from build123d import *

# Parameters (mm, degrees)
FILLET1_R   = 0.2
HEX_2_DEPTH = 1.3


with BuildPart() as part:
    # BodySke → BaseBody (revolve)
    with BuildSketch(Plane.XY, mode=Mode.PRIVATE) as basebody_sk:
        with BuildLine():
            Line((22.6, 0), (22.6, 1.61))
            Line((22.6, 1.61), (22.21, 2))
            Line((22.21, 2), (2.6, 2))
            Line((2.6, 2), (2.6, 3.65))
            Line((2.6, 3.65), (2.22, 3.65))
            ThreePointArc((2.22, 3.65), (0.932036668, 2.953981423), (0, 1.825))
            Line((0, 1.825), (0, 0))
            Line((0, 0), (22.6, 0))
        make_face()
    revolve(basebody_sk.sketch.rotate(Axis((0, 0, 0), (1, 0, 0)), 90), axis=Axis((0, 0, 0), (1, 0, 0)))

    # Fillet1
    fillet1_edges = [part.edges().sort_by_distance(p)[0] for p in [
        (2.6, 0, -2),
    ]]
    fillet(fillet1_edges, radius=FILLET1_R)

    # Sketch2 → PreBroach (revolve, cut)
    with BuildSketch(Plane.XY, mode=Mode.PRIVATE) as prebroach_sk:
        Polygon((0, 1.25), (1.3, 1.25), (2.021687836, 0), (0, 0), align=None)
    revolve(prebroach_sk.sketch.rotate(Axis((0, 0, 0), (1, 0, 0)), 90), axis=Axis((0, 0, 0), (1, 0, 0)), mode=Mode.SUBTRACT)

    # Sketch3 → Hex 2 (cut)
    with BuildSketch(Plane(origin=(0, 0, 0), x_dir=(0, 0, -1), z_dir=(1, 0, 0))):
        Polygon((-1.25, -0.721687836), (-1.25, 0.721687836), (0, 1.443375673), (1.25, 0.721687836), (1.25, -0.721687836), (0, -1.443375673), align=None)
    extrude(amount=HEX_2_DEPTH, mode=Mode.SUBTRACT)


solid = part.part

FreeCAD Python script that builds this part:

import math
import FreeCAD as App
import Part
import Sketcher
from FreeCAD import Vector
Q = App.Units.Quantity


def edges_at(feature, points):
    """Names of the edges that pass closest to the given points."""
    edges = feature.Shape.Edges
    near = lambda p: min(range(len(edges)), key=lambda i: edges[i].distToShape(Part.Vertex(*p))[0])
    return sorted({f"Edge{near(p) + 1}" for p in points})


def add_polygon(sketch, points):
    """Adds a closed chain of lines whose ends are joined by coincident constraints."""
    first, n = sketch.GeometryCount, len(points)
    for a, b in zip(points, points[1:] + points[:1]):
        sketch.addGeometry(Part.LineSegment(App.Vector(*a, 0), App.Vector(*b, 0)), False)
    for i in range(n):
        sketch.addConstraint(Sketcher.Constraint("Coincident", first + i, 2, first + (i + 1) % n, 1))

doc = App.newDocument("Part")
body = doc.addObject("PartDesign::Body", "Body")

# Sketch on XY plane
sketch1 = doc.addObject("Sketcher::SketchObject", "Sketch")
body.addObject(sketch1)
sketch1.AttachmentSupport = (doc.XY_Plane, [""])
sketch1.MapMode = "FlatFace"
sketch1.addGeometry(Part.LineSegment(Vector(22.6, 0, 0), Vector(22.6, 1.61, 0)), False)
sketch1.addGeometry(Part.LineSegment(Vector(22.6, 1.61, 0), Vector(22.21, 2, 0)), False)
sketch1.addGeometry(Part.LineSegment(Vector(22.21, 2, 0), Vector(2.6, 2, 0)), False)
sketch1.addGeometry(Part.LineSegment(Vector(2.6, 2, 0), Vector(2.6, 3.65, 0)), False)
sketch1.addGeometry(Part.LineSegment(Vector(2.6, 3.65, 0), Vector(2.22, 3.65, 0)), False)
sketch1.addGeometry(Part.ArcOfCircle(Part.Circle(Vector(3.36, 0, 0), Vector(0, 0, 1), 3.82), math.radians(107), math.radians(151)), False)
sketch1.addGeometry(Part.LineSegment(Vector(0, 1.82, 0), Vector(0, 0, 0)), False)
sketch1.addGeometry(Part.LineSegment(Vector(0, 0, 0), Vector(22.6, 0, 0)), False)
sketch1.addConstraint(Sketcher.Constraint("Coincident", 0, 2, 1, 1))
sketch1.addConstraint(Sketcher.Constraint("Coincident", 1, 2, 2, 1))
sketch1.addConstraint(Sketcher.Constraint("Coincident", 2, 2, 3, 1))
sketch1.addConstraint(Sketcher.Constraint("Coincident", 3, 2, 4, 1))
sketch1.addConstraint(Sketcher.Constraint("Coincident", 4, 2, 5, 1))
sketch1.addConstraint(Sketcher.Constraint("Coincident", 5, 2, 6, 1))
sketch1.addConstraint(Sketcher.Constraint("Coincident", 6, 2, 7, 1))
sketch1.addConstraint(Sketcher.Constraint("Coincident", 7, 2, 0, 1))
sketch1.addConstraint(Sketcher.Constraint("Vertical", 0))
sketch1.addConstraint(Sketcher.Constraint("Horizontal", 2))
sketch1.addConstraint(Sketcher.Constraint("Vertical", 3))
sketch1.addConstraint(Sketcher.Constraint("Horizontal", 4))
sketch1.addConstraint(Sketcher.Constraint("Vertical", 6))
sketch1.addConstraint(Sketcher.Constraint("Horizontal", 7))
sketch1.addConstraint(Sketcher.Constraint("Coincident", 6, 2, -1, 1))
sketch1.addConstraint(Sketcher.Constraint("PointOnObject", 5, 3, -1))
sketch1.addConstraint(Sketcher.Constraint("Angle", 1, Q("135 deg")))
sketch1.addConstraint(Sketcher.Constraint("DistanceX", 7, 1, 7, 2, 22.6))
sketch1.addConstraint(Sketcher.Constraint("DistanceY", -1, 1, 1, 2, 2.0))
sketch1.addConstraint(Sketcher.Constraint("DistanceX", 2, 2, 0, 2, 20.0))
sketch1.addConstraint(Sketcher.Constraint("DistanceX", 2, 2, 2, 1, 19.61))
sketch1.addConstraint(Sketcher.Constraint("DistanceX", 4, 2, 4, 1, 0.38))
sketch1.addConstraint(Sketcher.Constraint("DistanceY", 3, 1, 3, 2, 1.65))
sketch1.addConstraint(Sketcher.Constraint("DistanceY", 6, 2, 6, 1, 1.825))
revolution = doc.addObject("PartDesign::Revolution", "Revolution")
body.addObject(revolution)
revolution.Profile = sketch1
revolution.ReferenceAxis = (sketch1, ["H_Axis"])
revolution.Angle = 360
doc.recompute()

fillet = doc.addObject("PartDesign::Fillet", "Fillet")
body.addObject(fillet)
fillet.Base = (revolution, edges_at(revolution, [(2.6, 0, -2)]))
fillet.Radius = 0.2

# Sketch on XY plane
sketch2 = doc.addObject("Sketcher::SketchObject", "Sketch001")
body.addObject(sketch2)
sketch2.AttachmentSupport = (doc.XY_Plane, [""])
sketch2.MapMode = "FlatFace"
add_polygon(sketch2, [(1.3, 1.2), (0, 1.2), (0, 0), (2, 0)])  # lines 0-3
sketch2.addConstraint(Sketcher.Constraint("Horizontal", 0))
sketch2.addConstraint(Sketcher.Constraint("Vertical", 1))
sketch2.addConstraint(Sketcher.Constraint("Horizontal", 2))
sketch2.addConstraint(Sketcher.Constraint("Coincident", 1, 2, -1, 1))
sketch2.addConstraint(Sketcher.Constraint("Angle", 3, Q("120 deg")))
sketch2.addConstraint(Sketcher.Constraint("DistanceX", 0, 2, 0, 1, 1.3))
sketch2.addConstraint(Sketcher.Constraint("DistanceY", 1, 2, 1, 1, 1.25))
groove = doc.addObject("PartDesign::Groove", "Groove")
body.addObject(groove)
groove.Profile = sketch2
groove.ReferenceAxis = (sketch2, ["H_Axis"])
groove.Angle = 360

# Sketch on YZ plane
sketch3 = doc.addObject("Sketcher::SketchObject", "Sketch002")
body.addObject(sketch3)
sketch3.AttachmentSupport = (doc.YZ_Plane, [""])
sketch3.MapMode = "FlatFace"
add_polygon(sketch3, [(0.7, 1.2), (-0.7, 1.2), (-1.4, 0), (-0.7, -1.2), (0.7, -1.2), (1.4, 0)])  # lines 0-5
sketch3.addConstraint(Sketcher.Constraint("Horizontal", 0))
sketch3.addConstraint(Sketcher.Constraint("Horizontal", 3))
sketch3.addConstraint(Sketcher.Constraint("Symmetric", 0, 2, 3, 2, -1, 1))
sketch3.addConstraint(Sketcher.Constraint("Symmetric", 1, 2, 4, 2, -1, 1))
sketch3.addConstraint(Sketcher.Constraint("PointOnObject", 1, 2, -1))
sketch3.addConstraint(Sketcher.Constraint("Parallel", 2, 5))
sketch3.addConstraint(Sketcher.Constraint("Vertical", 0, 2, 2, 2))
sketch3.addConstraint(Sketcher.Constraint("Angle", 1, Q("-120 deg")))
sketch3.addConstraint(Sketcher.Constraint("DistanceY", 2, 2, 0, 2, 2.5))
sketch3.addConstraint(Sketcher.Constraint("DistanceX", 0, 2, 0, 1, 1.443376))
pocket1 = doc.addObject("PartDesign::Pocket", "Pocket")
body.addObject(pocket1)
pocket1.Profile = sketch3
pocket1.Length = 1.3
pocket1.Reversed = True

doc.recompute()
